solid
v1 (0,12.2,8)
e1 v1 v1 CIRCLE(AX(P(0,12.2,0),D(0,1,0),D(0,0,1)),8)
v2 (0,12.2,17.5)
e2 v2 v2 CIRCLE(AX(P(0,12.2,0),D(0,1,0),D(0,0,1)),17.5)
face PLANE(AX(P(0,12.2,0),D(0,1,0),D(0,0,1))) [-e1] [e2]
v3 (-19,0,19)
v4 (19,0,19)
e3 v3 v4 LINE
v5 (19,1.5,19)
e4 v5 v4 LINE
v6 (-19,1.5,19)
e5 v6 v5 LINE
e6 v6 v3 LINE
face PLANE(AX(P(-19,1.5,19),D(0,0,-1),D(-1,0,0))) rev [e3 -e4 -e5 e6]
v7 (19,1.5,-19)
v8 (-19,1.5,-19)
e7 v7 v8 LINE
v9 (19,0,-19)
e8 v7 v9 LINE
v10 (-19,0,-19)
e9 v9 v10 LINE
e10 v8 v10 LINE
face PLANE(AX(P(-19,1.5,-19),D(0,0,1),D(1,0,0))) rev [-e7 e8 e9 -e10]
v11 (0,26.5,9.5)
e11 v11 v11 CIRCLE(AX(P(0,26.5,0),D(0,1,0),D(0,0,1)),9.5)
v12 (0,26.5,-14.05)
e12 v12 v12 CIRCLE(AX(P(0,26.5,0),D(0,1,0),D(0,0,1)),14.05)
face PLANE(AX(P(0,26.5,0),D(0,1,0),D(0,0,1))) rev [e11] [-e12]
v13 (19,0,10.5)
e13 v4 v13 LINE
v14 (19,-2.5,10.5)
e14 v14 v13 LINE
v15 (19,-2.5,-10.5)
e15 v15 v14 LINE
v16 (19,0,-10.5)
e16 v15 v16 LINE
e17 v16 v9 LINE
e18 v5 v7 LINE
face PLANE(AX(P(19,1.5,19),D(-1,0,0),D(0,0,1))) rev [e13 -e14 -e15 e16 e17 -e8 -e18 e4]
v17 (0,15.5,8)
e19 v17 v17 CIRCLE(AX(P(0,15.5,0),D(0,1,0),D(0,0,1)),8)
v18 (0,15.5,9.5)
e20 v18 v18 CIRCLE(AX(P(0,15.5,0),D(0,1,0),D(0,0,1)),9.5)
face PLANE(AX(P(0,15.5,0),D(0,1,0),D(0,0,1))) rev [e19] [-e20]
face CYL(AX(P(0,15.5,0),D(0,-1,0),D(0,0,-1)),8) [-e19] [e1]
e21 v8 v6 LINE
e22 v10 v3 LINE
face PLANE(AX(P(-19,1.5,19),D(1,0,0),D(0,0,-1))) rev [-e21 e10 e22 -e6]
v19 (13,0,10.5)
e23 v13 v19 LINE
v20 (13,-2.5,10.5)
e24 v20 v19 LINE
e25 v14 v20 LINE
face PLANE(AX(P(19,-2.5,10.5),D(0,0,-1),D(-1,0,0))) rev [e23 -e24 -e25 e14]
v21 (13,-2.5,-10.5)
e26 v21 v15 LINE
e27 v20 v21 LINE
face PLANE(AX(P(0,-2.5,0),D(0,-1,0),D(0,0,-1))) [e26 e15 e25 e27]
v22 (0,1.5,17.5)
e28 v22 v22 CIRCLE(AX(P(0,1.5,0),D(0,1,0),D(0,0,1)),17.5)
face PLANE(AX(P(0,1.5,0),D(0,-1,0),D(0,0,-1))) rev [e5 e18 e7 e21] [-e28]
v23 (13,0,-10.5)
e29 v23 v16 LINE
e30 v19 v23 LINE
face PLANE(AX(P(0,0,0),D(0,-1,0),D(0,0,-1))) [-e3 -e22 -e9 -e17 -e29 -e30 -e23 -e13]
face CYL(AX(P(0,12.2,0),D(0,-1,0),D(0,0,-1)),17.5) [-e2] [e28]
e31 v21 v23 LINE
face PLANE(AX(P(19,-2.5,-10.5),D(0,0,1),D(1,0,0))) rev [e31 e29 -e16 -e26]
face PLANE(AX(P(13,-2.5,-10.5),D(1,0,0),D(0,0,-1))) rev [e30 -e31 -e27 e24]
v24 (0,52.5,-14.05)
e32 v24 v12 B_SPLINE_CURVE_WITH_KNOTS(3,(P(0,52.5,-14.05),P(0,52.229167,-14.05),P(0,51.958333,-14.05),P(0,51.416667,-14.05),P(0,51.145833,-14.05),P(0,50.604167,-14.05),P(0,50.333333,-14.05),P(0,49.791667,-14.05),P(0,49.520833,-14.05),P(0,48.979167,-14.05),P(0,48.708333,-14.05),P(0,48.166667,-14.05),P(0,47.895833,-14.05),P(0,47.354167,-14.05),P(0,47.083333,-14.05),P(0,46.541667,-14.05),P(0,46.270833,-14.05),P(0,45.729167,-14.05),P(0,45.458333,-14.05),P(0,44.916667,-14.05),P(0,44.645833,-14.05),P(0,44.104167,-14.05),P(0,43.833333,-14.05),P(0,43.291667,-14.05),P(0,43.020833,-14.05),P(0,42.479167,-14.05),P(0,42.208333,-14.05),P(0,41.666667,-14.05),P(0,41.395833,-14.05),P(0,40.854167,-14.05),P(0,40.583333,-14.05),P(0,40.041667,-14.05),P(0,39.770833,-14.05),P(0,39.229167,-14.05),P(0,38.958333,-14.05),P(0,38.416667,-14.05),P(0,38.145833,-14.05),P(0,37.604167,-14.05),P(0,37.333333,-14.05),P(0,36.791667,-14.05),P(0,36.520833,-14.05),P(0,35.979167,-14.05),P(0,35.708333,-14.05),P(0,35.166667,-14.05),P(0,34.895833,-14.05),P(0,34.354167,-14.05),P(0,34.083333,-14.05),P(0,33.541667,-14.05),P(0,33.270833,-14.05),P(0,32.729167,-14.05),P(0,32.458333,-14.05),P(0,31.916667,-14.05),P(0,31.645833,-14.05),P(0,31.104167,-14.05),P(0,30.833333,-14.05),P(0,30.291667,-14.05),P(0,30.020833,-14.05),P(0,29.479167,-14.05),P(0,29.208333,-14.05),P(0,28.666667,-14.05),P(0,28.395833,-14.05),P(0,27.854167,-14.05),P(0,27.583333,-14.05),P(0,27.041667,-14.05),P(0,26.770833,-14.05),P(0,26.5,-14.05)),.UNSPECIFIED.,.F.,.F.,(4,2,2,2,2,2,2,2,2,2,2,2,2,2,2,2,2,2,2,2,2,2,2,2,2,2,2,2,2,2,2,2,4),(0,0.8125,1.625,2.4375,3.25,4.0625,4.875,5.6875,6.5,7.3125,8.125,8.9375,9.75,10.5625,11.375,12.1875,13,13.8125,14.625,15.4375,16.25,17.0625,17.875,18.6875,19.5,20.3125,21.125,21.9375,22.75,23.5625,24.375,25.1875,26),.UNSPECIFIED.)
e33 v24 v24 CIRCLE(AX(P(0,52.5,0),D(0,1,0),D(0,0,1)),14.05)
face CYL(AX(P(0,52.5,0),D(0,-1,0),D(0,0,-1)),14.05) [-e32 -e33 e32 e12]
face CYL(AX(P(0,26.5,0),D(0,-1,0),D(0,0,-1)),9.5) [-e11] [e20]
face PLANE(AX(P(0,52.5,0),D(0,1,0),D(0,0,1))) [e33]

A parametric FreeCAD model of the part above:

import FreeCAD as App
import Part
import Sketcher
from FreeCAD import Vector
Q = App.Units.Quantity

doc = App.newDocument("Part")
params = doc.addObject("Spreadsheet::Sheet", "Params")
for row, (alias, value) in enumerate([
    ("sketch1_width", "38 mm"),
    ("pad1_length", "1.5 mm"),
    ("sketch2_diameter", "35 mm"),
    ("pad2_length", "10.7 mm"),
    ("sketch3_diameter", "16 mm"),
    ("pad3_length", "3.3 mm"),
    ("sketch4_diameter", "19 mm"),
    ("pad4_length", "11 mm"),
    ("sketch5_diameter", "28.1 mm"),
    ("pad5_length", "26 mm"),
    ("sketch6_width", "6 mm"),
    ("sketch6_height", "21 mm"),
    ("pad6_length", "2.5 mm"),
], start=1):
    params.set(f"A{row}", alias)
    params.set(f"B{row}", "=" + value)
    params.setAlias(f"B{row}", alias)

body = doc.addObject("PartDesign::Body", "Body")

# Sketch on XZ plane
sketch1 = doc.addObject("Sketcher::SketchObject", "Sketch")
body.addObject(sketch1)
sketch1.AttachmentSupport = (doc.XZ_Plane, [""])
sketch1.MapMode = "FlatFace"
sketch1.addGeometry(Part.LineSegment(Vector(-19, -19, 0), Vector(-19, 19, 0)), False)
sketch1.addGeometry(Part.LineSegment(Vector(-19, 19, 0), Vector(19, 19, 0)), False)
sketch1.addGeometry(Part.LineSegment(Vector(19, 19, 0), Vector(19, -19, 0)), False)
sketch1.addGeometry(Part.LineSegment(Vector(19, -19, 0), Vector(-19, -19, 0)), False)
sketch1.addConstraint(Sketcher.Constraint("Coincident", 0, 2, 1, 1))
sketch1.addConstraint(Sketcher.Constraint("Coincident", 1, 2, 2, 1))
sketch1.addConstraint(Sketcher.Constraint("Coincident", 2, 2, 3, 1))
sketch1.addConstraint(Sketcher.Constraint("Coincident", 3, 2, 0, 1))
sketch1.addConstraint(Sketcher.Constraint("Vertical", 0))
sketch1.addConstraint(Sketcher.Constraint("Horizontal", 1))
sketch1.addConstraint(Sketcher.Constraint("Vertical", 2))
sketch1.addConstraint(Sketcher.Constraint("Horizontal", 3))
sketch1.addConstraint(Sketcher.Constraint("Symmetric", 0, 2, 2, 2, -1, 1))
sketch1.addConstraint(Sketcher.Constraint("Equal", 3, 0))
sketch1.addConstraint(Sketcher.Constraint("DistanceX", 1, 1, 1, 2, Q("38 mm")))
sketch1.setExpression("Constraints[10]", "Params.sketch1_width")
pad1 = doc.addObject("PartDesign::Pad", "Pad")
body.addObject(pad1)
pad1.Profile = sketch1
pad1.setExpression("Length", "Params.pad1_length")
pad1.Reversed = True

# Sketch on XZ plane
sketch2 = doc.addObject("Sketcher::SketchObject", "Sketch001")
body.addObject(sketch2)
sketch2.AttachmentSupport = (doc.XZ_Plane, [""])
sketch2.MapMode = "FlatFace"
sketch2.AttachmentOffset = App.Placement(Vector(0, 0, -1.5), App.Rotation())
sketch2.addGeometry(Part.Circle(Vector(0, 0, 0), Vector(0, 0, 1), 18), False)
sketch2.addConstraint(Sketcher.Constraint("Coincident", 0, 3, -1, 1))
sketch2.addConstraint(Sketcher.Constraint("Diameter", 0, Q("35 mm")))
sketch2.setExpression("Constraints[1]", "Params.sketch2_diameter")
pad2 = doc.addObject("PartDesign::Pad", "Pad001")
body.addObject(pad2)
pad2.Profile = sketch2
pad2.setExpression("Length", "Params.pad2_length")
pad2.Reversed = True

# Sketch on XZ plane
sketch3 = doc.addObject("Sketcher::SketchObject", "Sketch002")
body.addObject(sketch3)
sketch3.AttachmentSupport = (doc.XZ_Plane, [""])
sketch3.MapMode = "FlatFace"
sketch3.AttachmentOffset = App.Placement(Vector(0, 0, -12.2), App.Rotation())
sketch3.addGeometry(Part.Circle(Vector(0, 0, 0), Vector(0, 0, 1), 8), False)
sketch3.addConstraint(Sketcher.Constraint("Coincident", 0, 3, -1, 1))
sketch3.addConstraint(Sketcher.Constraint("Diameter", 0, Q("16 mm")))
sketch3.setExpression("Constraints[1]", "Params.sketch3_diameter")
pad3 = doc.addObject("PartDesign::Pad", "Pad002")
body.addObject(pad3)
pad3.Profile = sketch3
pad3.setExpression("Length", "Params.pad3_length")
pad3.Reversed = True

# Sketch on XZ plane
sketch4 = doc.addObject("Sketcher::SketchObject", "Sketch003")
body.addObject(sketch4)
sketch4.AttachmentSupport = (doc.XZ_Plane, [""])
sketch4.MapMode = "FlatFace"
sketch4.AttachmentOffset = App.Placement(Vector(0, 0, -15.5), App.Rotation())
sketch4.addGeometry(Part.Circle(Vector(0, 0, 0), Vector(0, 0, 1), 10), False)
sketch4.addConstraint(Sketcher.Constraint("Coincident", 0, 3, -1, 1))
sketch4.addConstraint(Sketcher.Constraint("Diameter", 0, Q("19 mm")))
sketch4.setExpression("Constraints[1]", "Params.sketch4_diameter")
pad4 = doc.addObject("PartDesign::Pad", "Pad003")
body.addObject(pad4)
pad4.Profile = sketch4
pad4.setExpression("Length", "Params.pad4_length")
pad4.Reversed = True

# Sketch on XZ plane
sketch5 = doc.addObject("Sketcher::SketchObject", "Sketch004")
body.addObject(sketch5)
sketch5.AttachmentSupport = (doc.XZ_Plane, [""])
sketch5.MapMode = "FlatFace"
sketch5.AttachmentOffset = App.Placement(Vector(0, 0, -26.5), App.Rotation())
sketch5.addGeometry(Part.Circle(Vector(0, 0, 0), Vector(0, 0, 1), 14), False)
sketch5.addConstraint(Sketcher.Constraint("Coincident", 0, 3, -1, 1))
sketch5.addConstraint(Sketcher.Constraint("Diameter", 0, Q("28.1 mm")))
sketch5.setExpression("Constraints[1]", "Params.sketch5_diameter")
pad5 = doc.addObject("PartDesign::Pad", "Pad004")
body.addObject(pad5)
pad5.Profile = sketch5
pad5.setExpression("Length", "Params.pad5_length")
pad5.Reversed = True

# Sketch on XZ plane
sketch6 = doc.addObject("Sketcher::SketchObject", "Sketch005")
body.addObject(sketch6)
sketch6.AttachmentSupport = (doc.XZ_Plane, [""])
sketch6.MapMode = "FlatFace"
sketch6.addGeometry(Part.LineSegment(Vector(13, 10, 0), Vector(13, -10, 0)), False)
sketch6.addGeometry(Part.LineSegment(Vector(13, -10, 0), Vector(19, -10, 0)), False)
sketch6.addGeometry(Part.LineSegment(Vector(19, -10, 0), Vector(19, 10, 0)), False)
sketch6.addGeometry(Part.LineSegment(Vector(19, 10, 0), Vector(13, 10, 0)), False)
sketch6.addConstraint(Sketcher.Constraint("Coincident", 0, 2, 1, 1))
sketch6.addConstraint(Sketcher.Constraint("Coincident", 1, 2, 2, 1))
sketch6.addConstraint(Sketcher.Constraint("Coincident", 2, 2, 3, 1))
sketch6.addConstraint(Sketcher.Constraint("Coincident", 3, 2, 0, 1))
sketch6.addConstraint(Sketcher.Constraint("Vertical", 0))
sketch6.addConstraint(Sketcher.Constraint("Horizontal", 1))
sketch6.addConstraint(Sketcher.Constraint("Vertical", 2))
sketch6.addConstraint(Sketcher.Constraint("Horizontal", 3))
sketch6.addConstraint(Sketcher.Constraint("DistanceX", 1, 1, 1, 2, Q("6 mm")))
sketch6.addConstraint(Sketcher.Constraint("DistanceY", 0, 2, 0, 1, Q("21 mm")))
sketch6.addConstraint(Sketcher.Constraint("DistanceX", -1, 1, 0, 2, Q("13 mm")))
sketch6.addConstraint(Sketcher.Constraint("DistanceY", 0, 2, -1, 1, Q("10.5 mm")))
sketch6.setExpression("Constraints[8]", "Params.sketch6_width")
sketch6.setExpression("Constraints[9]", "Params.sketch6_height")
pad6 = doc.addObject("PartDesign::Pad", "Pad005")
body.addObject(pad6)
pad6.Profile = sketch6
pad6.setExpression("Length", "Params.pad6_length")

doc.recompute()
